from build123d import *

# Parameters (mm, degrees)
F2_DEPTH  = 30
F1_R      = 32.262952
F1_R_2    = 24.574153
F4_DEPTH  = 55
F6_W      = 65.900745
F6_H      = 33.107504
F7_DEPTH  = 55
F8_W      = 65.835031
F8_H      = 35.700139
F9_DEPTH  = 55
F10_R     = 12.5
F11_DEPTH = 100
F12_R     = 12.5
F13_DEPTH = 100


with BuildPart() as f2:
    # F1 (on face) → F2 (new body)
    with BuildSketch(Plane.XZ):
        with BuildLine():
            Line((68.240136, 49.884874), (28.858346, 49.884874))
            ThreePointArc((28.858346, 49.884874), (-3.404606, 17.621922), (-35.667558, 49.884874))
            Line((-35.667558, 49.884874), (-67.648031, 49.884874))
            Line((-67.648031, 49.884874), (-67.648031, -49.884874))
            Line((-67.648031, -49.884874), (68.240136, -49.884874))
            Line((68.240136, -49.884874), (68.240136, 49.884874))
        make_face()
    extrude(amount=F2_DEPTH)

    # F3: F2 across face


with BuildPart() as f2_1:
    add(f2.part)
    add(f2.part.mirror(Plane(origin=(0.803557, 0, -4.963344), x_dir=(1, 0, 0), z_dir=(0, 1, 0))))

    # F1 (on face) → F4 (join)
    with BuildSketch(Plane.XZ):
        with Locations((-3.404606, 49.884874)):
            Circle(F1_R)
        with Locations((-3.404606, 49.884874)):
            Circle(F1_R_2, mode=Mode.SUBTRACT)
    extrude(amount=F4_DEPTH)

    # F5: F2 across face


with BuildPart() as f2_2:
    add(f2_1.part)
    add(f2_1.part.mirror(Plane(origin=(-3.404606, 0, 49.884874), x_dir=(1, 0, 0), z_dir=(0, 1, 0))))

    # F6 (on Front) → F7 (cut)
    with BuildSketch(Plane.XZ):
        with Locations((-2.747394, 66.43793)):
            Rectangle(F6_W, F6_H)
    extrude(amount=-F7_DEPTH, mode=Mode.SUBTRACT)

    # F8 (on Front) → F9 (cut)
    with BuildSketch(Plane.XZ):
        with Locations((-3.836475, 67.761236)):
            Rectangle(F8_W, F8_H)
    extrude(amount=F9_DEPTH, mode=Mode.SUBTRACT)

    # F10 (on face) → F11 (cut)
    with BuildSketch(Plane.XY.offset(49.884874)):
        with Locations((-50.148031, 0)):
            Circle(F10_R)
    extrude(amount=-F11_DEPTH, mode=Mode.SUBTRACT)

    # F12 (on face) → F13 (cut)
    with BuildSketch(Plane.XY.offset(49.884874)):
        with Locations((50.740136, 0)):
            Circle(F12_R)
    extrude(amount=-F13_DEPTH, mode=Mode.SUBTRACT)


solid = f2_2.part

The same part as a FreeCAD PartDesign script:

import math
import FreeCAD as App
import Part
import Sketcher
from FreeCAD import Vector
Q = App.Units.Quantity

doc = App.newDocument("Part")
body = doc.addObject("PartDesign::Body", "Body")

# Sketch on XZ plane
sketch1 = body.newObject("Sketcher::SketchObject", "Sketch")
sketch1.AttachmentSupport = (doc.getObject("XZ_Plane"), [""])
sketch1.MapMode = "FlatFace"
sketch1.addGeometry(Part.LineSegment(Vector(68, 50, 0), Vector(29, 50, 0)), False)
sketch1.addGeometry(Part.ArcOfCircle(Part.Circle(Vector(-3, 50, 0), Vector(0, 0, 1), 32), math.radians(180), math.radians(360)), False)
sketch1.addGeometry(Part.LineSegment(Vector(-36, 50, 0), Vector(-68, 50, 0)), False)
sketch1.addGeometry(Part.LineSegment(Vector(-68, 50, 0), Vector(-68, -50, 0)), False)
sketch1.addGeometry(Part.LineSegment(Vector(-68, -50, 0), Vector(68, -50, 0)), False)
sketch1.addGeometry(Part.LineSegment(Vector(68, -50, 0), Vector(68, 50, 0)), False)
sketch1.addConstraint(Sketcher.Constraint("Coincident", 0, 2, 1, 2))
sketch1.addConstraint(Sketcher.Constraint("Coincident", 1, 1, 2, 1))
sketch1.addConstraint(Sketcher.Constraint("Coincident", 2, 2, 3, 1))
sketch1.addConstraint(Sketcher.Constraint("Coincident", 3, 2, 4, 1))
sketch1.addConstraint(Sketcher.Constraint("Coincident", 4, 2, 5, 1))
sketch1.addConstraint(Sketcher.Constraint("Coincident", 5, 2, 0, 1))
sketch1.addConstraint(Sketcher.Constraint("Horizontal", 0))
sketch1.addConstraint(Sketcher.Constraint("Horizontal", 2))
sketch1.addConstraint(Sketcher.Constraint("Vertical", 3))
sketch1.addConstraint(Sketcher.Constraint("Horizontal", 4))
sketch1.addConstraint(Sketcher.Constraint("Vertical", 5))
sketch1.addConstraint(Sketcher.Constraint("Horizontal", 1, 3, 0, 2))
sketch1.addConstraint(Sketcher.Constraint("Horizontal", 0, 2, 1, 1))
sketch1.addConstraint(Sketcher.Constraint("Radius", 1, Q("32.262952 mm")))
sketch1.addConstraint(Sketcher.Constraint("DistanceX", 0, 2, 0, 1, Q("39.38179 mm")))
sketch1.addConstraint(Sketcher.Constraint("DistanceY", 3, 2, 3, 1, Q("99.769748 mm")))
sketch1.addConstraint(Sketcher.Constraint("DistanceX", 2, 2, 2, 1, Q("31.980473 mm")))
sketch1.addConstraint(Sketcher.Constraint("DistanceX", 2, 2, -1, 1, Q("67.648031 mm")))
sketch1.addConstraint(Sketcher.Constraint("DistanceY", -1, 1, 1, 3, Q("49.884874 mm")))
pad1 = body.newObject("PartDesign::Pad", "Pad")
pad1.Profile = sketch1
pad1.Length = 30
body2 = doc.addObject("PartDesign::Body", "Body001")
doc.recompute()

body2.BaseFeature = body
doc.recompute()

mirroring = doc.addObject("Part::Mirroring", "Mirroring")
mirroring.Source = body
mirroring.Base = Vector(0.803557, 0, -4.963344)
mirroring.Normal = Vector(0, 1, 0)
body3 = doc.addObject("PartDesign::Body", "Body002")
body3.BaseFeature = mirroring
boolean = body2.newObject("PartDesign::Boolean", "Boolean")
boolean.Type = "Fuse"
boolean.addObjects([body3])
doc.recompute()

# Sketch on XZ plane
sketch2 = body2.newObject("Sketcher::SketchObject", "Sketch001")
sketch2.AttachmentSupport = (doc.getObject("XZ_Plane001"), [""])
sketch2.MapMode = "FlatFace"
sketch2.addGeometry(Part.Circle(Vector(-3, 50, 0), Vector(0, 0, 1), 32), False)
sketch2.addGeometry(Part.Circle(Vector(-3, 50, 0), Vector(0, 0, 1), 25), False)
sketch2.addConstraint(Sketcher.Constraint("Coincident", 1, 3, 0, 3))
sketch2.addConstraint(Sketcher.Constraint("Diameter", 0, Q("64.525904 mm")))
sketch2.addConstraint(Sketcher.Constraint("Diameter", 1, Q("49.148306 mm")))
sketch2.addConstraint(Sketcher.Constraint("DistanceX", 0, 3, -1, 1, Q("3.404606 mm")))
sketch2.addConstraint(Sketcher.Constraint("DistanceY", -1, 1, 0, 3, Q("49.884874 mm")))
pad2 = body2.newObject("PartDesign::Pad", "Pad001")
pad2.Profile = sketch2
pad2.Length = 55
body4 = doc.addObject("PartDesign::Body", "Body003")
doc.recompute()

body4.BaseFeature = body2
doc.recompute()

mirroring2 = doc.addObject("Part::Mirroring", "Mirroring001")
mirroring2.Source = body2
mirroring2.Base = Vector(-3.404606, 0, 49.884874)
mirroring2.Normal = Vector(0, 1, 0)
body5 = doc.addObject("PartDesign::Body", "Body004")
body5.BaseFeature = mirroring2
boolean2 = body4.newObject("PartDesign::Boolean", "Boolean001")
boolean2.Type = "Fuse"
boolean2.addObjects([body5])
doc.recompute()

# Sketch on XZ plane
sketch3 = body4.newObject("Sketcher::SketchObject", "Sketch002")
sketch3.AttachmentSupport = (doc.getObject("XZ_Plane003"), [""])
sketch3.MapMode = "FlatFace"
sketch3.addGeometry(Part.LineSegment(Vector(-36, 83, 0), Vector(-36, 50, 0)), False)
sketch3.addGeometry(Part.LineSegment(Vector(-36, 50, 0), Vector(30, 50, 0)), False)
sketch3.addGeometry(Part.LineSegment(Vector(30, 50, 0), Vector(30, 83, 0)), False)
sketch3.addGeometry(Part.LineSegment(Vector(30, 83, 0), Vector(-36, 83, 0)), False)
sketch3.addConstraint(Sketcher.Constraint("Coincident", 0, 2, 1, 1))
sketch3.addConstraint(Sketcher.Constraint("Coincident", 1, 2, 2, 1))
sketch3.addConstraint(Sketcher.Constraint("Coincident", 2, 2, 3, 1))
sketch3.addConstraint(Sketcher.Constraint("Coincident", 3, 2, 0, 1))
sketch3.addConstraint(Sketcher.Constraint("Vertical", 0))
sketch3.addConstraint(Sketcher.Constraint("Horizontal", 1))
sketch3.addConstraint(Sketcher.Constraint("Vertical", 2))
sketch3.addConstraint(Sketcher.Constraint("Horizontal", 3))
sketch3.addConstraint(Sketcher.Constraint("DistanceX", 1, 1, 1, 2, Q("65.900745 mm")))
sketch3.addConstraint(Sketcher.Constraint("DistanceY", 0, 2, 0, 1, Q("33.107504 mm")))
sketch3.addConstraint(Sketcher.Constraint("DistanceX", -1, 1, 1, 2, Q("30.202979 mm")))
sketch3.addConstraint(Sketcher.Constraint("DistanceY", -1, 1, 2, 2, Q("82.991682 mm")))
pocket1 = body4.newObject("PartDesign::Pocket", "Pocket")
pocket1.Profile = sketch3
pocket1.Length = 55

# Sketch on XZ plane
sketch4 = body4.newObject("Sketcher::SketchObject", "Sketch003")
sketch4.AttachmentSupport = (doc.getObject("XZ_Plane003"), [""])
sketch4.MapMode = "FlatFace"
sketch4.addGeometry(Part.LineSegment(Vector(-37, 86, 0), Vector(-37, 50, 0)), False)
sketch4.addGeometry(Part.LineSegment(Vector(-37, 50, 0), Vector(29, 50, 0)), False)
sketch4.addGeometry(Part.LineSegment(Vector(29, 50, 0), Vector(29, 86, 0)), False)
sketch4.addGeometry(Part.LineSegment(Vector(29, 86, 0), Vector(-37, 86, 0)), False)
sketch4.addConstraint(Sketcher.Constraint("Coincident", 0, 2, 1, 1))
sketch4.addConstraint(Sketcher.Constraint("Coincident", 1, 2, 2, 1))
sketch4.addConstraint(Sketcher.Constraint("Coincident", 2, 2, 3, 1))
sketch4.addConstraint(Sketcher.Constraint("Coincident", 3, 2, 0, 1))
sketch4.addConstraint(Sketcher.Constraint("Vertical", 0))
sketch4.addConstraint(Sketcher.Constraint("Horizontal", 1))
sketch4.addConstraint(Sketcher.Constraint("Vertical", 2))
sketch4.addConstraint(Sketcher.Constraint("Horizontal", 3))
sketch4.addConstraint(Sketcher.Constraint("DistanceX", 1, 1, 1, 2, Q("65.835031 mm")))
sketch4.addConstraint(Sketcher.Constraint("DistanceY", 0, 2, 0, 1, Q("35.700139 mm")))
sketch4.addConstraint(Sketcher.Constraint("DistanceX", 0, 2, -1, 1, Q("36.753991 mm")))
sketch4.addConstraint(Sketcher.Constraint("DistanceY", -1, 1, 0, 2, Q("49.911167 mm")))
pocket2 = body4.newObject("PartDesign::Pocket", "Pocket001")
pocket2.Profile = sketch4
pocket2.Length = 55
pocket2.Reversed = True

# Sketch on XY plane
sketch5 = body4.newObject("Sketcher::SketchObject", "Sketch004")
sketch5.AttachmentSupport = (doc.getObject("XY_Plane003"), [""])
sketch5.MapMode = "FlatFace"
sketch5.AttachmentOffset = App.Placement(Vector(0, 0, 49.884874), App.Rotation())
sketch5.addGeometry(Part.Circle(Vector(-50, 0, 0), Vector(0, 0, 1), 12), False)
sketch5.addConstraint(Sketcher.Constraint("PointOnObject", 0, 3, -1))
sketch5.addConstraint(Sketcher.Constraint("Diameter", 0, Q("25 mm")))
sketch5.addConstraint(Sketcher.Constraint("DistanceX", 0, 3, -1, 1, Q("50.148031 mm")))
pocket3 = body4.newObject("PartDesign::Pocket", "Pocket002")
pocket3.Profile = sketch5
pocket3.Length = 100

# Sketch on XY plane
sketch6 = body4.newObject("Sketcher::SketchObject", "Sketch005")
sketch6.AttachmentSupport = (doc.getObject("XY_Plane003"), [""])
sketch6.MapMode = "FlatFace"
sketch6.AttachmentOffset = App.Placement(Vector(0, 0, 49.884874), App.Rotation())
sketch6.addGeometry(Part.Circle(Vector(51, 0, 0), Vector(0, 0, 1), 12), False)
sketch6.addConstraint(Sketcher.Constraint("PointOnObject", 0, 3, -1))
sketch6.addConstraint(Sketcher.Constraint("Diameter", 0, Q("25 mm")))
sketch6.addConstraint(Sketcher.Constraint("DistanceX", -1, 1, 0, 3, Q("50.740136 mm")))
pocket4 = body4.newObject("PartDesign::Pocket", "Pocket003")
pocket4.Profile = sketch6
pocket4.Length = 100
mirroring.Visibility = False
mirroring2.Visibility = False

doc.recompute()
